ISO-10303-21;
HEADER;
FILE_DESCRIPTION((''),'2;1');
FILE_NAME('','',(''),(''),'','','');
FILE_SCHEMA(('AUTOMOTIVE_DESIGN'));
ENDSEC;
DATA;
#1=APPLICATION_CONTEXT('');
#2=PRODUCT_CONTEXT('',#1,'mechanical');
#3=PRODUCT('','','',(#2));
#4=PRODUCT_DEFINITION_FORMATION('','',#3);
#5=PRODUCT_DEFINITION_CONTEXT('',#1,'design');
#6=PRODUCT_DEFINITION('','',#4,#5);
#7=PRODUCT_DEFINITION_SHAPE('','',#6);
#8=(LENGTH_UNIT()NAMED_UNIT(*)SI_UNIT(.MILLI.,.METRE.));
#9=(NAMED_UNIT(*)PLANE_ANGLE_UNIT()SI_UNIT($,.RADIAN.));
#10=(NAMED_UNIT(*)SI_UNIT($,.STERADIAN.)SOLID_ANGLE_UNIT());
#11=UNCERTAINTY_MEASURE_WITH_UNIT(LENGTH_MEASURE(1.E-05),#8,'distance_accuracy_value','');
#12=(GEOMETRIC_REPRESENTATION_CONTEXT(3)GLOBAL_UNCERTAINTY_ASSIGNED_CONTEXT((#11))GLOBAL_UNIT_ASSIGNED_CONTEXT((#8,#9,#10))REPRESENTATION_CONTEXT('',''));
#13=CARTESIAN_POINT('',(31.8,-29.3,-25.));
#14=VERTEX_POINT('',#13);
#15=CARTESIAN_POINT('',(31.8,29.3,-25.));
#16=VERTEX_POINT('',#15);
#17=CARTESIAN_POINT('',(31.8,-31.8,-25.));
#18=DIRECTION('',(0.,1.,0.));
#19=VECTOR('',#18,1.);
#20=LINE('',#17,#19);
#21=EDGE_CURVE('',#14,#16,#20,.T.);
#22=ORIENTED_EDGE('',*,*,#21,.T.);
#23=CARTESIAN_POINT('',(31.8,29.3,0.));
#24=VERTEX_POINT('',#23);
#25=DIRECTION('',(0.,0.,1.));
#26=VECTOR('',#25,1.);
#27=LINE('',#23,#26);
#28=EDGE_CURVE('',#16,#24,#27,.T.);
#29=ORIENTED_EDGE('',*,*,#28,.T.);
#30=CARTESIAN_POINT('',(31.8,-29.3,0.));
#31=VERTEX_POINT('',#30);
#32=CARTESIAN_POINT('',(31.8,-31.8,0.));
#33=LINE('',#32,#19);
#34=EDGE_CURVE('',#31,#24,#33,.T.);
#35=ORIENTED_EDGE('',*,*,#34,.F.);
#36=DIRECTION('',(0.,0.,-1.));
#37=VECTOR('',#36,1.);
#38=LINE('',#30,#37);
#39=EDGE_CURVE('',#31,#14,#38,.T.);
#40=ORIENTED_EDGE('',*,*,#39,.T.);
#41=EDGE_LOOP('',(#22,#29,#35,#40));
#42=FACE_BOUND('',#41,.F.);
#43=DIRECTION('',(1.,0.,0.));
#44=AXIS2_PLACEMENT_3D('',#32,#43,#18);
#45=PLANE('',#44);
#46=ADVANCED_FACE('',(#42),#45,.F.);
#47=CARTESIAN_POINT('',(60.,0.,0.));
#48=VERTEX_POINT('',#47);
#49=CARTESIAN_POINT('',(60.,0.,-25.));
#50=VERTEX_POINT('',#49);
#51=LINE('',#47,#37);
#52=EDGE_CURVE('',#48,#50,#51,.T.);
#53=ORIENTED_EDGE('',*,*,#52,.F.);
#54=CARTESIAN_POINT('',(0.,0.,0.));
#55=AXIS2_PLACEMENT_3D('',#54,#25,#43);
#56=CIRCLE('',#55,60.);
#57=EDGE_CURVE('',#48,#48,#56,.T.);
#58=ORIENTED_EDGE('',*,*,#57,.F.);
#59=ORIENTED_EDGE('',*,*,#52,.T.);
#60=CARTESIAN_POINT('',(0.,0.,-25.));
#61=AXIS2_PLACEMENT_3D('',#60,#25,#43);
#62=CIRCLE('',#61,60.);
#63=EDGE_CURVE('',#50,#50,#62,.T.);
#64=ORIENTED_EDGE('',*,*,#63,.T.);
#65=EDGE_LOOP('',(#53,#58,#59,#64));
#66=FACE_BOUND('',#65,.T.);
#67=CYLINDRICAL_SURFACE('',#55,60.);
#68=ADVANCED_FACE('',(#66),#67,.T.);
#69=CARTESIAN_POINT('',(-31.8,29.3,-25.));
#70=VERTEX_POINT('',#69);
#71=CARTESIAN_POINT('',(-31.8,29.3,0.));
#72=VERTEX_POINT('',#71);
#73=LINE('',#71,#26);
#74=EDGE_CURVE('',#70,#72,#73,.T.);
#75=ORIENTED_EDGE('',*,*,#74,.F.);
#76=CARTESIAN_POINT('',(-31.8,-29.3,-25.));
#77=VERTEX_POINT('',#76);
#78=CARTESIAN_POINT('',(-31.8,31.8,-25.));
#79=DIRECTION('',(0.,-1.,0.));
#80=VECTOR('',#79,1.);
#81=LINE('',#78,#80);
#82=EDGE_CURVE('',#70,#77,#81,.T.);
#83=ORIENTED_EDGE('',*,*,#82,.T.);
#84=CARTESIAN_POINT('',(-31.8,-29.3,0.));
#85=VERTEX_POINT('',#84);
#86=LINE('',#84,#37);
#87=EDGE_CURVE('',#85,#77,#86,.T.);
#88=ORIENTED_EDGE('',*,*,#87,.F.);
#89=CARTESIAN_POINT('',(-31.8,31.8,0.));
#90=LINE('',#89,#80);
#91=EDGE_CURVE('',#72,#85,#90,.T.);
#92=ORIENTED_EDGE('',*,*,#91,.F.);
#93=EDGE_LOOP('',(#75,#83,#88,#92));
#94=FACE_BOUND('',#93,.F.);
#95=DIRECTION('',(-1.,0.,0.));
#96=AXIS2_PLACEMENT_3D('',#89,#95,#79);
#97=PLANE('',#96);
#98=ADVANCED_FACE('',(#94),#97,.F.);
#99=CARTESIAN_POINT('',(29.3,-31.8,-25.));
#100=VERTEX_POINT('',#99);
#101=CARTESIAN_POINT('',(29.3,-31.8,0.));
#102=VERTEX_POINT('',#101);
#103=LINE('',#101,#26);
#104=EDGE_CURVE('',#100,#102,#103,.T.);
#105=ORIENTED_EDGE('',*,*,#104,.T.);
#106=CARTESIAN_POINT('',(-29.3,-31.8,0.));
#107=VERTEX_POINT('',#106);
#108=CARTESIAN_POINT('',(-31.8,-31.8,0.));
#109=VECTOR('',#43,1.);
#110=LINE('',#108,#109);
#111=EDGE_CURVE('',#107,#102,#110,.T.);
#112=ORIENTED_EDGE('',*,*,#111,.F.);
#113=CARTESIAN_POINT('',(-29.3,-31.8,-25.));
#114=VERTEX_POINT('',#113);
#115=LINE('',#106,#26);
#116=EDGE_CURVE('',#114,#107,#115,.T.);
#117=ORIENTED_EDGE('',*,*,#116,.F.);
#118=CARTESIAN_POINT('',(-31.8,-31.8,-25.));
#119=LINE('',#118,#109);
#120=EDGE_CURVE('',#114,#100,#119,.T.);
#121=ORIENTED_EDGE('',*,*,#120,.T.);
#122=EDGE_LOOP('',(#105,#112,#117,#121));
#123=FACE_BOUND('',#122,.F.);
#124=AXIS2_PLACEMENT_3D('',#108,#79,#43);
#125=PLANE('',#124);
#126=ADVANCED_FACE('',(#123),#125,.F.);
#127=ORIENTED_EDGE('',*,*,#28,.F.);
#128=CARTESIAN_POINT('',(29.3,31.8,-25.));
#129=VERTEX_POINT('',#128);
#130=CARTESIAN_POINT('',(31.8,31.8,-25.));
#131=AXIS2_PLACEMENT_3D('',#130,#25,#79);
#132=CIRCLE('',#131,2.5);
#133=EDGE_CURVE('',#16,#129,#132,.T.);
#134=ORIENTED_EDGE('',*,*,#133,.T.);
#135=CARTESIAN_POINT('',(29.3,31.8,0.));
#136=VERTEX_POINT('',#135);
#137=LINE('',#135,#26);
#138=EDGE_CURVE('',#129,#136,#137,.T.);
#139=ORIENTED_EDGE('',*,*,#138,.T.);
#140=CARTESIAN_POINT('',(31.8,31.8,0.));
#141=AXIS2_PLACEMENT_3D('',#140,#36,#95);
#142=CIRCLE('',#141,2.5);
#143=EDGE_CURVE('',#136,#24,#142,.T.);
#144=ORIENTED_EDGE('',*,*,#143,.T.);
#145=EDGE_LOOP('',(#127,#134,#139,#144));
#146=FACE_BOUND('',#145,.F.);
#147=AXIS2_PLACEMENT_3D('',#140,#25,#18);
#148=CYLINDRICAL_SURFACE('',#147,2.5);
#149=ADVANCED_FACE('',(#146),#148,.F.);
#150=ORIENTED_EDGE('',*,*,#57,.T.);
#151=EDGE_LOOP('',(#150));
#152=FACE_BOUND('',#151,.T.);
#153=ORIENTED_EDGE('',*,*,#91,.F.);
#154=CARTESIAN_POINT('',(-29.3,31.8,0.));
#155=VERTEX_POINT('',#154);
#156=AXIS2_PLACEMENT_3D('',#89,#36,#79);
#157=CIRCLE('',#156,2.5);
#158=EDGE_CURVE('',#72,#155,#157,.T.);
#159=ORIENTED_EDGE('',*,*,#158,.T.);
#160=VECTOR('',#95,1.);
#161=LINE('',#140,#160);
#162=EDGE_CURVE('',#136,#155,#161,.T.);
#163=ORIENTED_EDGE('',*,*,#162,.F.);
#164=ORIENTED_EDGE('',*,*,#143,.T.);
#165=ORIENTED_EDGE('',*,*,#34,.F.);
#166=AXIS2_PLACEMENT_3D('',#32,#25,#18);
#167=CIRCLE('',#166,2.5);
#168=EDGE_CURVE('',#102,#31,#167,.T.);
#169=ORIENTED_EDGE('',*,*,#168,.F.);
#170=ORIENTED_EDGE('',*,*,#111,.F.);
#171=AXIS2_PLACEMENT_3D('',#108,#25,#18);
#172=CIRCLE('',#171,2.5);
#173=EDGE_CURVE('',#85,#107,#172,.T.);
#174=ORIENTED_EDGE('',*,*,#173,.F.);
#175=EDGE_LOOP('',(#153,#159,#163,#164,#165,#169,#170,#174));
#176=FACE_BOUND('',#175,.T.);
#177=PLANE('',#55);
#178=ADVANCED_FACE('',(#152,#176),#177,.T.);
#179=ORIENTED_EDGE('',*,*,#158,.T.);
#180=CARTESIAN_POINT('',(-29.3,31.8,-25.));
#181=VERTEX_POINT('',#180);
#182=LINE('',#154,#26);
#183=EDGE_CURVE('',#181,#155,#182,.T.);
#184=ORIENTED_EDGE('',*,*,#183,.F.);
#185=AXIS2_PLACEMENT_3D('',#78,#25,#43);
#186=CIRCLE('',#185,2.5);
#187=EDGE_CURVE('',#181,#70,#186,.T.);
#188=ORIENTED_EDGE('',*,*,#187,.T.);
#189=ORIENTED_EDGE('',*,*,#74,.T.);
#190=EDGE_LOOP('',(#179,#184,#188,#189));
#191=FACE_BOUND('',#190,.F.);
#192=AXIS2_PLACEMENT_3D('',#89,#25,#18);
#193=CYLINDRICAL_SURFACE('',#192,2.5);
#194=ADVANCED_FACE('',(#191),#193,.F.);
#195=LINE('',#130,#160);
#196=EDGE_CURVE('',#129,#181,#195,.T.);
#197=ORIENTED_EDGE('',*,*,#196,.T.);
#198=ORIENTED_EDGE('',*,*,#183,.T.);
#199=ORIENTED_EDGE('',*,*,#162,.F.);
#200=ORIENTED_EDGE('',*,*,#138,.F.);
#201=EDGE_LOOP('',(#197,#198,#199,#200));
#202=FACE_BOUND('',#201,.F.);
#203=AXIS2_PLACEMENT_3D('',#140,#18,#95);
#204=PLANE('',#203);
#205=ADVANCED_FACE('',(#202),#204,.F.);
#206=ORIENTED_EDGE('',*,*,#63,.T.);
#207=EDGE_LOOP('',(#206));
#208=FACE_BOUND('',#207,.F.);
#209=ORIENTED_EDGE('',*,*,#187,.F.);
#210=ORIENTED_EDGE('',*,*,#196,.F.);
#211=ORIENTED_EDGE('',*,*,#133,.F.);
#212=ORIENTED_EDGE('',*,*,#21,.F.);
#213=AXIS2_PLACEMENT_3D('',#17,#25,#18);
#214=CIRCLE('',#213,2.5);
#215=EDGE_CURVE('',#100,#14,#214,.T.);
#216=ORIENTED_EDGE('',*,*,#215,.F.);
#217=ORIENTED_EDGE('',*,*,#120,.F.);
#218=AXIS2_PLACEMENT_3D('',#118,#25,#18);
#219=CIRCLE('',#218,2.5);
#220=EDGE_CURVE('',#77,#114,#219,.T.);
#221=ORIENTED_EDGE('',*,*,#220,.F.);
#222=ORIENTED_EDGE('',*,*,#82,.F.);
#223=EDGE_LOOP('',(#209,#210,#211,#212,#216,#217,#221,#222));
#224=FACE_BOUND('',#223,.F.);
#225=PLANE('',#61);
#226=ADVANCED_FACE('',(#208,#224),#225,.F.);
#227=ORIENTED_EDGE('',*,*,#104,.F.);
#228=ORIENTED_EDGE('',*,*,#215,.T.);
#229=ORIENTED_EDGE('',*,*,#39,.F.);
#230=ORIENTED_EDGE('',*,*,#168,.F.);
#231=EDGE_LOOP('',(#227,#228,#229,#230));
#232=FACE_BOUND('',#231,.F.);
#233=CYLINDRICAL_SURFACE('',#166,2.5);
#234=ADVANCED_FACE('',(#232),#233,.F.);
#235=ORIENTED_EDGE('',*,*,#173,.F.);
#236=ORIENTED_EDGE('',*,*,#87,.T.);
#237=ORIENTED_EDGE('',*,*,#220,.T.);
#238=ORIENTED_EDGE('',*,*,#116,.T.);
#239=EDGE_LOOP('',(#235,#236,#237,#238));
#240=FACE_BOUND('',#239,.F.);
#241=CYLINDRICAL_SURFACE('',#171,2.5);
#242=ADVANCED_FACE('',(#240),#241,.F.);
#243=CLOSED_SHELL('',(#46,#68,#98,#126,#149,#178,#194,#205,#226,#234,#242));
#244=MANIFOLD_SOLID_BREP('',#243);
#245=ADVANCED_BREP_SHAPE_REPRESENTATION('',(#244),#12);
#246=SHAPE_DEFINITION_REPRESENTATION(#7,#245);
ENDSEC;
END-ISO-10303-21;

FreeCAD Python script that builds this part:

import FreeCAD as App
import Part
import Sketcher

V = App.Vector


def add_polygon(sketch, points):
    """Adds a closed chain of lines whose ends are joined by coincident constraints."""
    first, n = sketch.GeometryCount, len(points)
    for a, b in zip(points, points[1:] + points[:1]):
        sketch.addGeometry(Part.LineSegment(App.Vector(*a, 0), App.Vector(*b, 0)), False)
    for i in range(n):
        sketch.addConstraint(Sketcher.Constraint("Coincident", first + i, 2, first + (i + 1) % n, 1))

doc = App.newDocument("Part")
body = doc.addObject("PartDesign::Body", "Body")

# Sketch on XY plane
sketch1 = body.newObject("Sketcher::SketchObject", "Sketch")
sketch1.AttachmentSupport = (doc.getObject("XY_Plane"), [""])
sketch1.MapMode = "FlatFace"
sketch1.addGeometry(Part.Circle(V(0, 0, 0), V(0, 0, 1), 60), False)
sketch1.addConstraint([
    Sketcher.Constraint("Coincident", 0, 3, -1, 1),
    Sketcher.Constraint("Diameter", 0, 120.0),
])
pad1 = body.newObject("PartDesign::Pad", "Pad")
pad1.Profile = sketch1
pad1.Length = 25
pad1.Reversed = True

# Sketch on XY plane
sketch2 = body.newObject("Sketcher::SketchObject", "Sketch001")
sketch2.AttachmentSupport = (doc.getObject("XY_Plane"), [""])
sketch2.MapMode = "FlatFace"
add_polygon(sketch2, [(-32, 32), (-32, -32), (32, -32), (32, 32)])  # lines 0-3
sketch2.addConstraint([
    Sketcher.Constraint("Vertical", 0),
    Sketcher.Constraint("Horizontal", 1),
    Sketcher.Constraint("Vertical", 2),
    Sketcher.Constraint("Horizontal", 3),
    Sketcher.Constraint("Symmetric", 0, 2, 2, 2, -1, 1),
    Sketcher.Constraint("Equal", 3, 0),
    Sketcher.Constraint("DistanceX", 1, 1, 1, 2, 63.6),
])
pocket1 = body.newObject("PartDesign::Pocket", "Pocket")
pocket1.Profile = sketch2
pocket1.Length = 25

# Sketch on XY plane
sketch3 = body.newObject("Sketcher::SketchObject", "Sketch002")
sketch3.AttachmentSupport = (doc.getObject("XY_Plane"), [""])
sketch3.MapMode = "FlatFace"
sketch3.addGeometry([
    Part.Circle(V(-31.8, 31.8, 0), V(0, 0, 1), 2.5),
    Part.Circle(V(-31.8, -31.8, 0), V(0, 0, 1), 2.5),
    Part.Circle(V(31.8, 31.8, 0), V(0, 0, 1), 2.5),
    Part.Circle(V(31.8, -31.8, 0), V(0, 0, 1), 2.5),
], False)
sketch3.addConstraint([
    Sketcher.Constraint("Equal", 0, 1),
    Sketcher.Constraint("Equal", 1, 2),
    Sketcher.Constraint("Equal", 2, 3),
    Sketcher.Constraint("Symmetric", 1, 3, 2, 3, -1, 1),
    Sketcher.Constraint("Symmetric", 0, 3, 3, 3, -1, 1),
    Sketcher.Constraint("Symmetric", 0, 3, 2, 3, -2),
    Sketcher.Constraint("Diameter", 0, 5.0),
    Sketcher.Constraint("DistanceX", 0, 3, -1, 1, 31.8),
    Sketcher.Constraint("DistanceY", -1, 1, 0, 3, 31.8),
])
pocket2 = body.newObject("PartDesign::Pocket", "Pocket001")
pocket2.Profile = sketch3
pocket2.Length = 25

doc.recompute()
